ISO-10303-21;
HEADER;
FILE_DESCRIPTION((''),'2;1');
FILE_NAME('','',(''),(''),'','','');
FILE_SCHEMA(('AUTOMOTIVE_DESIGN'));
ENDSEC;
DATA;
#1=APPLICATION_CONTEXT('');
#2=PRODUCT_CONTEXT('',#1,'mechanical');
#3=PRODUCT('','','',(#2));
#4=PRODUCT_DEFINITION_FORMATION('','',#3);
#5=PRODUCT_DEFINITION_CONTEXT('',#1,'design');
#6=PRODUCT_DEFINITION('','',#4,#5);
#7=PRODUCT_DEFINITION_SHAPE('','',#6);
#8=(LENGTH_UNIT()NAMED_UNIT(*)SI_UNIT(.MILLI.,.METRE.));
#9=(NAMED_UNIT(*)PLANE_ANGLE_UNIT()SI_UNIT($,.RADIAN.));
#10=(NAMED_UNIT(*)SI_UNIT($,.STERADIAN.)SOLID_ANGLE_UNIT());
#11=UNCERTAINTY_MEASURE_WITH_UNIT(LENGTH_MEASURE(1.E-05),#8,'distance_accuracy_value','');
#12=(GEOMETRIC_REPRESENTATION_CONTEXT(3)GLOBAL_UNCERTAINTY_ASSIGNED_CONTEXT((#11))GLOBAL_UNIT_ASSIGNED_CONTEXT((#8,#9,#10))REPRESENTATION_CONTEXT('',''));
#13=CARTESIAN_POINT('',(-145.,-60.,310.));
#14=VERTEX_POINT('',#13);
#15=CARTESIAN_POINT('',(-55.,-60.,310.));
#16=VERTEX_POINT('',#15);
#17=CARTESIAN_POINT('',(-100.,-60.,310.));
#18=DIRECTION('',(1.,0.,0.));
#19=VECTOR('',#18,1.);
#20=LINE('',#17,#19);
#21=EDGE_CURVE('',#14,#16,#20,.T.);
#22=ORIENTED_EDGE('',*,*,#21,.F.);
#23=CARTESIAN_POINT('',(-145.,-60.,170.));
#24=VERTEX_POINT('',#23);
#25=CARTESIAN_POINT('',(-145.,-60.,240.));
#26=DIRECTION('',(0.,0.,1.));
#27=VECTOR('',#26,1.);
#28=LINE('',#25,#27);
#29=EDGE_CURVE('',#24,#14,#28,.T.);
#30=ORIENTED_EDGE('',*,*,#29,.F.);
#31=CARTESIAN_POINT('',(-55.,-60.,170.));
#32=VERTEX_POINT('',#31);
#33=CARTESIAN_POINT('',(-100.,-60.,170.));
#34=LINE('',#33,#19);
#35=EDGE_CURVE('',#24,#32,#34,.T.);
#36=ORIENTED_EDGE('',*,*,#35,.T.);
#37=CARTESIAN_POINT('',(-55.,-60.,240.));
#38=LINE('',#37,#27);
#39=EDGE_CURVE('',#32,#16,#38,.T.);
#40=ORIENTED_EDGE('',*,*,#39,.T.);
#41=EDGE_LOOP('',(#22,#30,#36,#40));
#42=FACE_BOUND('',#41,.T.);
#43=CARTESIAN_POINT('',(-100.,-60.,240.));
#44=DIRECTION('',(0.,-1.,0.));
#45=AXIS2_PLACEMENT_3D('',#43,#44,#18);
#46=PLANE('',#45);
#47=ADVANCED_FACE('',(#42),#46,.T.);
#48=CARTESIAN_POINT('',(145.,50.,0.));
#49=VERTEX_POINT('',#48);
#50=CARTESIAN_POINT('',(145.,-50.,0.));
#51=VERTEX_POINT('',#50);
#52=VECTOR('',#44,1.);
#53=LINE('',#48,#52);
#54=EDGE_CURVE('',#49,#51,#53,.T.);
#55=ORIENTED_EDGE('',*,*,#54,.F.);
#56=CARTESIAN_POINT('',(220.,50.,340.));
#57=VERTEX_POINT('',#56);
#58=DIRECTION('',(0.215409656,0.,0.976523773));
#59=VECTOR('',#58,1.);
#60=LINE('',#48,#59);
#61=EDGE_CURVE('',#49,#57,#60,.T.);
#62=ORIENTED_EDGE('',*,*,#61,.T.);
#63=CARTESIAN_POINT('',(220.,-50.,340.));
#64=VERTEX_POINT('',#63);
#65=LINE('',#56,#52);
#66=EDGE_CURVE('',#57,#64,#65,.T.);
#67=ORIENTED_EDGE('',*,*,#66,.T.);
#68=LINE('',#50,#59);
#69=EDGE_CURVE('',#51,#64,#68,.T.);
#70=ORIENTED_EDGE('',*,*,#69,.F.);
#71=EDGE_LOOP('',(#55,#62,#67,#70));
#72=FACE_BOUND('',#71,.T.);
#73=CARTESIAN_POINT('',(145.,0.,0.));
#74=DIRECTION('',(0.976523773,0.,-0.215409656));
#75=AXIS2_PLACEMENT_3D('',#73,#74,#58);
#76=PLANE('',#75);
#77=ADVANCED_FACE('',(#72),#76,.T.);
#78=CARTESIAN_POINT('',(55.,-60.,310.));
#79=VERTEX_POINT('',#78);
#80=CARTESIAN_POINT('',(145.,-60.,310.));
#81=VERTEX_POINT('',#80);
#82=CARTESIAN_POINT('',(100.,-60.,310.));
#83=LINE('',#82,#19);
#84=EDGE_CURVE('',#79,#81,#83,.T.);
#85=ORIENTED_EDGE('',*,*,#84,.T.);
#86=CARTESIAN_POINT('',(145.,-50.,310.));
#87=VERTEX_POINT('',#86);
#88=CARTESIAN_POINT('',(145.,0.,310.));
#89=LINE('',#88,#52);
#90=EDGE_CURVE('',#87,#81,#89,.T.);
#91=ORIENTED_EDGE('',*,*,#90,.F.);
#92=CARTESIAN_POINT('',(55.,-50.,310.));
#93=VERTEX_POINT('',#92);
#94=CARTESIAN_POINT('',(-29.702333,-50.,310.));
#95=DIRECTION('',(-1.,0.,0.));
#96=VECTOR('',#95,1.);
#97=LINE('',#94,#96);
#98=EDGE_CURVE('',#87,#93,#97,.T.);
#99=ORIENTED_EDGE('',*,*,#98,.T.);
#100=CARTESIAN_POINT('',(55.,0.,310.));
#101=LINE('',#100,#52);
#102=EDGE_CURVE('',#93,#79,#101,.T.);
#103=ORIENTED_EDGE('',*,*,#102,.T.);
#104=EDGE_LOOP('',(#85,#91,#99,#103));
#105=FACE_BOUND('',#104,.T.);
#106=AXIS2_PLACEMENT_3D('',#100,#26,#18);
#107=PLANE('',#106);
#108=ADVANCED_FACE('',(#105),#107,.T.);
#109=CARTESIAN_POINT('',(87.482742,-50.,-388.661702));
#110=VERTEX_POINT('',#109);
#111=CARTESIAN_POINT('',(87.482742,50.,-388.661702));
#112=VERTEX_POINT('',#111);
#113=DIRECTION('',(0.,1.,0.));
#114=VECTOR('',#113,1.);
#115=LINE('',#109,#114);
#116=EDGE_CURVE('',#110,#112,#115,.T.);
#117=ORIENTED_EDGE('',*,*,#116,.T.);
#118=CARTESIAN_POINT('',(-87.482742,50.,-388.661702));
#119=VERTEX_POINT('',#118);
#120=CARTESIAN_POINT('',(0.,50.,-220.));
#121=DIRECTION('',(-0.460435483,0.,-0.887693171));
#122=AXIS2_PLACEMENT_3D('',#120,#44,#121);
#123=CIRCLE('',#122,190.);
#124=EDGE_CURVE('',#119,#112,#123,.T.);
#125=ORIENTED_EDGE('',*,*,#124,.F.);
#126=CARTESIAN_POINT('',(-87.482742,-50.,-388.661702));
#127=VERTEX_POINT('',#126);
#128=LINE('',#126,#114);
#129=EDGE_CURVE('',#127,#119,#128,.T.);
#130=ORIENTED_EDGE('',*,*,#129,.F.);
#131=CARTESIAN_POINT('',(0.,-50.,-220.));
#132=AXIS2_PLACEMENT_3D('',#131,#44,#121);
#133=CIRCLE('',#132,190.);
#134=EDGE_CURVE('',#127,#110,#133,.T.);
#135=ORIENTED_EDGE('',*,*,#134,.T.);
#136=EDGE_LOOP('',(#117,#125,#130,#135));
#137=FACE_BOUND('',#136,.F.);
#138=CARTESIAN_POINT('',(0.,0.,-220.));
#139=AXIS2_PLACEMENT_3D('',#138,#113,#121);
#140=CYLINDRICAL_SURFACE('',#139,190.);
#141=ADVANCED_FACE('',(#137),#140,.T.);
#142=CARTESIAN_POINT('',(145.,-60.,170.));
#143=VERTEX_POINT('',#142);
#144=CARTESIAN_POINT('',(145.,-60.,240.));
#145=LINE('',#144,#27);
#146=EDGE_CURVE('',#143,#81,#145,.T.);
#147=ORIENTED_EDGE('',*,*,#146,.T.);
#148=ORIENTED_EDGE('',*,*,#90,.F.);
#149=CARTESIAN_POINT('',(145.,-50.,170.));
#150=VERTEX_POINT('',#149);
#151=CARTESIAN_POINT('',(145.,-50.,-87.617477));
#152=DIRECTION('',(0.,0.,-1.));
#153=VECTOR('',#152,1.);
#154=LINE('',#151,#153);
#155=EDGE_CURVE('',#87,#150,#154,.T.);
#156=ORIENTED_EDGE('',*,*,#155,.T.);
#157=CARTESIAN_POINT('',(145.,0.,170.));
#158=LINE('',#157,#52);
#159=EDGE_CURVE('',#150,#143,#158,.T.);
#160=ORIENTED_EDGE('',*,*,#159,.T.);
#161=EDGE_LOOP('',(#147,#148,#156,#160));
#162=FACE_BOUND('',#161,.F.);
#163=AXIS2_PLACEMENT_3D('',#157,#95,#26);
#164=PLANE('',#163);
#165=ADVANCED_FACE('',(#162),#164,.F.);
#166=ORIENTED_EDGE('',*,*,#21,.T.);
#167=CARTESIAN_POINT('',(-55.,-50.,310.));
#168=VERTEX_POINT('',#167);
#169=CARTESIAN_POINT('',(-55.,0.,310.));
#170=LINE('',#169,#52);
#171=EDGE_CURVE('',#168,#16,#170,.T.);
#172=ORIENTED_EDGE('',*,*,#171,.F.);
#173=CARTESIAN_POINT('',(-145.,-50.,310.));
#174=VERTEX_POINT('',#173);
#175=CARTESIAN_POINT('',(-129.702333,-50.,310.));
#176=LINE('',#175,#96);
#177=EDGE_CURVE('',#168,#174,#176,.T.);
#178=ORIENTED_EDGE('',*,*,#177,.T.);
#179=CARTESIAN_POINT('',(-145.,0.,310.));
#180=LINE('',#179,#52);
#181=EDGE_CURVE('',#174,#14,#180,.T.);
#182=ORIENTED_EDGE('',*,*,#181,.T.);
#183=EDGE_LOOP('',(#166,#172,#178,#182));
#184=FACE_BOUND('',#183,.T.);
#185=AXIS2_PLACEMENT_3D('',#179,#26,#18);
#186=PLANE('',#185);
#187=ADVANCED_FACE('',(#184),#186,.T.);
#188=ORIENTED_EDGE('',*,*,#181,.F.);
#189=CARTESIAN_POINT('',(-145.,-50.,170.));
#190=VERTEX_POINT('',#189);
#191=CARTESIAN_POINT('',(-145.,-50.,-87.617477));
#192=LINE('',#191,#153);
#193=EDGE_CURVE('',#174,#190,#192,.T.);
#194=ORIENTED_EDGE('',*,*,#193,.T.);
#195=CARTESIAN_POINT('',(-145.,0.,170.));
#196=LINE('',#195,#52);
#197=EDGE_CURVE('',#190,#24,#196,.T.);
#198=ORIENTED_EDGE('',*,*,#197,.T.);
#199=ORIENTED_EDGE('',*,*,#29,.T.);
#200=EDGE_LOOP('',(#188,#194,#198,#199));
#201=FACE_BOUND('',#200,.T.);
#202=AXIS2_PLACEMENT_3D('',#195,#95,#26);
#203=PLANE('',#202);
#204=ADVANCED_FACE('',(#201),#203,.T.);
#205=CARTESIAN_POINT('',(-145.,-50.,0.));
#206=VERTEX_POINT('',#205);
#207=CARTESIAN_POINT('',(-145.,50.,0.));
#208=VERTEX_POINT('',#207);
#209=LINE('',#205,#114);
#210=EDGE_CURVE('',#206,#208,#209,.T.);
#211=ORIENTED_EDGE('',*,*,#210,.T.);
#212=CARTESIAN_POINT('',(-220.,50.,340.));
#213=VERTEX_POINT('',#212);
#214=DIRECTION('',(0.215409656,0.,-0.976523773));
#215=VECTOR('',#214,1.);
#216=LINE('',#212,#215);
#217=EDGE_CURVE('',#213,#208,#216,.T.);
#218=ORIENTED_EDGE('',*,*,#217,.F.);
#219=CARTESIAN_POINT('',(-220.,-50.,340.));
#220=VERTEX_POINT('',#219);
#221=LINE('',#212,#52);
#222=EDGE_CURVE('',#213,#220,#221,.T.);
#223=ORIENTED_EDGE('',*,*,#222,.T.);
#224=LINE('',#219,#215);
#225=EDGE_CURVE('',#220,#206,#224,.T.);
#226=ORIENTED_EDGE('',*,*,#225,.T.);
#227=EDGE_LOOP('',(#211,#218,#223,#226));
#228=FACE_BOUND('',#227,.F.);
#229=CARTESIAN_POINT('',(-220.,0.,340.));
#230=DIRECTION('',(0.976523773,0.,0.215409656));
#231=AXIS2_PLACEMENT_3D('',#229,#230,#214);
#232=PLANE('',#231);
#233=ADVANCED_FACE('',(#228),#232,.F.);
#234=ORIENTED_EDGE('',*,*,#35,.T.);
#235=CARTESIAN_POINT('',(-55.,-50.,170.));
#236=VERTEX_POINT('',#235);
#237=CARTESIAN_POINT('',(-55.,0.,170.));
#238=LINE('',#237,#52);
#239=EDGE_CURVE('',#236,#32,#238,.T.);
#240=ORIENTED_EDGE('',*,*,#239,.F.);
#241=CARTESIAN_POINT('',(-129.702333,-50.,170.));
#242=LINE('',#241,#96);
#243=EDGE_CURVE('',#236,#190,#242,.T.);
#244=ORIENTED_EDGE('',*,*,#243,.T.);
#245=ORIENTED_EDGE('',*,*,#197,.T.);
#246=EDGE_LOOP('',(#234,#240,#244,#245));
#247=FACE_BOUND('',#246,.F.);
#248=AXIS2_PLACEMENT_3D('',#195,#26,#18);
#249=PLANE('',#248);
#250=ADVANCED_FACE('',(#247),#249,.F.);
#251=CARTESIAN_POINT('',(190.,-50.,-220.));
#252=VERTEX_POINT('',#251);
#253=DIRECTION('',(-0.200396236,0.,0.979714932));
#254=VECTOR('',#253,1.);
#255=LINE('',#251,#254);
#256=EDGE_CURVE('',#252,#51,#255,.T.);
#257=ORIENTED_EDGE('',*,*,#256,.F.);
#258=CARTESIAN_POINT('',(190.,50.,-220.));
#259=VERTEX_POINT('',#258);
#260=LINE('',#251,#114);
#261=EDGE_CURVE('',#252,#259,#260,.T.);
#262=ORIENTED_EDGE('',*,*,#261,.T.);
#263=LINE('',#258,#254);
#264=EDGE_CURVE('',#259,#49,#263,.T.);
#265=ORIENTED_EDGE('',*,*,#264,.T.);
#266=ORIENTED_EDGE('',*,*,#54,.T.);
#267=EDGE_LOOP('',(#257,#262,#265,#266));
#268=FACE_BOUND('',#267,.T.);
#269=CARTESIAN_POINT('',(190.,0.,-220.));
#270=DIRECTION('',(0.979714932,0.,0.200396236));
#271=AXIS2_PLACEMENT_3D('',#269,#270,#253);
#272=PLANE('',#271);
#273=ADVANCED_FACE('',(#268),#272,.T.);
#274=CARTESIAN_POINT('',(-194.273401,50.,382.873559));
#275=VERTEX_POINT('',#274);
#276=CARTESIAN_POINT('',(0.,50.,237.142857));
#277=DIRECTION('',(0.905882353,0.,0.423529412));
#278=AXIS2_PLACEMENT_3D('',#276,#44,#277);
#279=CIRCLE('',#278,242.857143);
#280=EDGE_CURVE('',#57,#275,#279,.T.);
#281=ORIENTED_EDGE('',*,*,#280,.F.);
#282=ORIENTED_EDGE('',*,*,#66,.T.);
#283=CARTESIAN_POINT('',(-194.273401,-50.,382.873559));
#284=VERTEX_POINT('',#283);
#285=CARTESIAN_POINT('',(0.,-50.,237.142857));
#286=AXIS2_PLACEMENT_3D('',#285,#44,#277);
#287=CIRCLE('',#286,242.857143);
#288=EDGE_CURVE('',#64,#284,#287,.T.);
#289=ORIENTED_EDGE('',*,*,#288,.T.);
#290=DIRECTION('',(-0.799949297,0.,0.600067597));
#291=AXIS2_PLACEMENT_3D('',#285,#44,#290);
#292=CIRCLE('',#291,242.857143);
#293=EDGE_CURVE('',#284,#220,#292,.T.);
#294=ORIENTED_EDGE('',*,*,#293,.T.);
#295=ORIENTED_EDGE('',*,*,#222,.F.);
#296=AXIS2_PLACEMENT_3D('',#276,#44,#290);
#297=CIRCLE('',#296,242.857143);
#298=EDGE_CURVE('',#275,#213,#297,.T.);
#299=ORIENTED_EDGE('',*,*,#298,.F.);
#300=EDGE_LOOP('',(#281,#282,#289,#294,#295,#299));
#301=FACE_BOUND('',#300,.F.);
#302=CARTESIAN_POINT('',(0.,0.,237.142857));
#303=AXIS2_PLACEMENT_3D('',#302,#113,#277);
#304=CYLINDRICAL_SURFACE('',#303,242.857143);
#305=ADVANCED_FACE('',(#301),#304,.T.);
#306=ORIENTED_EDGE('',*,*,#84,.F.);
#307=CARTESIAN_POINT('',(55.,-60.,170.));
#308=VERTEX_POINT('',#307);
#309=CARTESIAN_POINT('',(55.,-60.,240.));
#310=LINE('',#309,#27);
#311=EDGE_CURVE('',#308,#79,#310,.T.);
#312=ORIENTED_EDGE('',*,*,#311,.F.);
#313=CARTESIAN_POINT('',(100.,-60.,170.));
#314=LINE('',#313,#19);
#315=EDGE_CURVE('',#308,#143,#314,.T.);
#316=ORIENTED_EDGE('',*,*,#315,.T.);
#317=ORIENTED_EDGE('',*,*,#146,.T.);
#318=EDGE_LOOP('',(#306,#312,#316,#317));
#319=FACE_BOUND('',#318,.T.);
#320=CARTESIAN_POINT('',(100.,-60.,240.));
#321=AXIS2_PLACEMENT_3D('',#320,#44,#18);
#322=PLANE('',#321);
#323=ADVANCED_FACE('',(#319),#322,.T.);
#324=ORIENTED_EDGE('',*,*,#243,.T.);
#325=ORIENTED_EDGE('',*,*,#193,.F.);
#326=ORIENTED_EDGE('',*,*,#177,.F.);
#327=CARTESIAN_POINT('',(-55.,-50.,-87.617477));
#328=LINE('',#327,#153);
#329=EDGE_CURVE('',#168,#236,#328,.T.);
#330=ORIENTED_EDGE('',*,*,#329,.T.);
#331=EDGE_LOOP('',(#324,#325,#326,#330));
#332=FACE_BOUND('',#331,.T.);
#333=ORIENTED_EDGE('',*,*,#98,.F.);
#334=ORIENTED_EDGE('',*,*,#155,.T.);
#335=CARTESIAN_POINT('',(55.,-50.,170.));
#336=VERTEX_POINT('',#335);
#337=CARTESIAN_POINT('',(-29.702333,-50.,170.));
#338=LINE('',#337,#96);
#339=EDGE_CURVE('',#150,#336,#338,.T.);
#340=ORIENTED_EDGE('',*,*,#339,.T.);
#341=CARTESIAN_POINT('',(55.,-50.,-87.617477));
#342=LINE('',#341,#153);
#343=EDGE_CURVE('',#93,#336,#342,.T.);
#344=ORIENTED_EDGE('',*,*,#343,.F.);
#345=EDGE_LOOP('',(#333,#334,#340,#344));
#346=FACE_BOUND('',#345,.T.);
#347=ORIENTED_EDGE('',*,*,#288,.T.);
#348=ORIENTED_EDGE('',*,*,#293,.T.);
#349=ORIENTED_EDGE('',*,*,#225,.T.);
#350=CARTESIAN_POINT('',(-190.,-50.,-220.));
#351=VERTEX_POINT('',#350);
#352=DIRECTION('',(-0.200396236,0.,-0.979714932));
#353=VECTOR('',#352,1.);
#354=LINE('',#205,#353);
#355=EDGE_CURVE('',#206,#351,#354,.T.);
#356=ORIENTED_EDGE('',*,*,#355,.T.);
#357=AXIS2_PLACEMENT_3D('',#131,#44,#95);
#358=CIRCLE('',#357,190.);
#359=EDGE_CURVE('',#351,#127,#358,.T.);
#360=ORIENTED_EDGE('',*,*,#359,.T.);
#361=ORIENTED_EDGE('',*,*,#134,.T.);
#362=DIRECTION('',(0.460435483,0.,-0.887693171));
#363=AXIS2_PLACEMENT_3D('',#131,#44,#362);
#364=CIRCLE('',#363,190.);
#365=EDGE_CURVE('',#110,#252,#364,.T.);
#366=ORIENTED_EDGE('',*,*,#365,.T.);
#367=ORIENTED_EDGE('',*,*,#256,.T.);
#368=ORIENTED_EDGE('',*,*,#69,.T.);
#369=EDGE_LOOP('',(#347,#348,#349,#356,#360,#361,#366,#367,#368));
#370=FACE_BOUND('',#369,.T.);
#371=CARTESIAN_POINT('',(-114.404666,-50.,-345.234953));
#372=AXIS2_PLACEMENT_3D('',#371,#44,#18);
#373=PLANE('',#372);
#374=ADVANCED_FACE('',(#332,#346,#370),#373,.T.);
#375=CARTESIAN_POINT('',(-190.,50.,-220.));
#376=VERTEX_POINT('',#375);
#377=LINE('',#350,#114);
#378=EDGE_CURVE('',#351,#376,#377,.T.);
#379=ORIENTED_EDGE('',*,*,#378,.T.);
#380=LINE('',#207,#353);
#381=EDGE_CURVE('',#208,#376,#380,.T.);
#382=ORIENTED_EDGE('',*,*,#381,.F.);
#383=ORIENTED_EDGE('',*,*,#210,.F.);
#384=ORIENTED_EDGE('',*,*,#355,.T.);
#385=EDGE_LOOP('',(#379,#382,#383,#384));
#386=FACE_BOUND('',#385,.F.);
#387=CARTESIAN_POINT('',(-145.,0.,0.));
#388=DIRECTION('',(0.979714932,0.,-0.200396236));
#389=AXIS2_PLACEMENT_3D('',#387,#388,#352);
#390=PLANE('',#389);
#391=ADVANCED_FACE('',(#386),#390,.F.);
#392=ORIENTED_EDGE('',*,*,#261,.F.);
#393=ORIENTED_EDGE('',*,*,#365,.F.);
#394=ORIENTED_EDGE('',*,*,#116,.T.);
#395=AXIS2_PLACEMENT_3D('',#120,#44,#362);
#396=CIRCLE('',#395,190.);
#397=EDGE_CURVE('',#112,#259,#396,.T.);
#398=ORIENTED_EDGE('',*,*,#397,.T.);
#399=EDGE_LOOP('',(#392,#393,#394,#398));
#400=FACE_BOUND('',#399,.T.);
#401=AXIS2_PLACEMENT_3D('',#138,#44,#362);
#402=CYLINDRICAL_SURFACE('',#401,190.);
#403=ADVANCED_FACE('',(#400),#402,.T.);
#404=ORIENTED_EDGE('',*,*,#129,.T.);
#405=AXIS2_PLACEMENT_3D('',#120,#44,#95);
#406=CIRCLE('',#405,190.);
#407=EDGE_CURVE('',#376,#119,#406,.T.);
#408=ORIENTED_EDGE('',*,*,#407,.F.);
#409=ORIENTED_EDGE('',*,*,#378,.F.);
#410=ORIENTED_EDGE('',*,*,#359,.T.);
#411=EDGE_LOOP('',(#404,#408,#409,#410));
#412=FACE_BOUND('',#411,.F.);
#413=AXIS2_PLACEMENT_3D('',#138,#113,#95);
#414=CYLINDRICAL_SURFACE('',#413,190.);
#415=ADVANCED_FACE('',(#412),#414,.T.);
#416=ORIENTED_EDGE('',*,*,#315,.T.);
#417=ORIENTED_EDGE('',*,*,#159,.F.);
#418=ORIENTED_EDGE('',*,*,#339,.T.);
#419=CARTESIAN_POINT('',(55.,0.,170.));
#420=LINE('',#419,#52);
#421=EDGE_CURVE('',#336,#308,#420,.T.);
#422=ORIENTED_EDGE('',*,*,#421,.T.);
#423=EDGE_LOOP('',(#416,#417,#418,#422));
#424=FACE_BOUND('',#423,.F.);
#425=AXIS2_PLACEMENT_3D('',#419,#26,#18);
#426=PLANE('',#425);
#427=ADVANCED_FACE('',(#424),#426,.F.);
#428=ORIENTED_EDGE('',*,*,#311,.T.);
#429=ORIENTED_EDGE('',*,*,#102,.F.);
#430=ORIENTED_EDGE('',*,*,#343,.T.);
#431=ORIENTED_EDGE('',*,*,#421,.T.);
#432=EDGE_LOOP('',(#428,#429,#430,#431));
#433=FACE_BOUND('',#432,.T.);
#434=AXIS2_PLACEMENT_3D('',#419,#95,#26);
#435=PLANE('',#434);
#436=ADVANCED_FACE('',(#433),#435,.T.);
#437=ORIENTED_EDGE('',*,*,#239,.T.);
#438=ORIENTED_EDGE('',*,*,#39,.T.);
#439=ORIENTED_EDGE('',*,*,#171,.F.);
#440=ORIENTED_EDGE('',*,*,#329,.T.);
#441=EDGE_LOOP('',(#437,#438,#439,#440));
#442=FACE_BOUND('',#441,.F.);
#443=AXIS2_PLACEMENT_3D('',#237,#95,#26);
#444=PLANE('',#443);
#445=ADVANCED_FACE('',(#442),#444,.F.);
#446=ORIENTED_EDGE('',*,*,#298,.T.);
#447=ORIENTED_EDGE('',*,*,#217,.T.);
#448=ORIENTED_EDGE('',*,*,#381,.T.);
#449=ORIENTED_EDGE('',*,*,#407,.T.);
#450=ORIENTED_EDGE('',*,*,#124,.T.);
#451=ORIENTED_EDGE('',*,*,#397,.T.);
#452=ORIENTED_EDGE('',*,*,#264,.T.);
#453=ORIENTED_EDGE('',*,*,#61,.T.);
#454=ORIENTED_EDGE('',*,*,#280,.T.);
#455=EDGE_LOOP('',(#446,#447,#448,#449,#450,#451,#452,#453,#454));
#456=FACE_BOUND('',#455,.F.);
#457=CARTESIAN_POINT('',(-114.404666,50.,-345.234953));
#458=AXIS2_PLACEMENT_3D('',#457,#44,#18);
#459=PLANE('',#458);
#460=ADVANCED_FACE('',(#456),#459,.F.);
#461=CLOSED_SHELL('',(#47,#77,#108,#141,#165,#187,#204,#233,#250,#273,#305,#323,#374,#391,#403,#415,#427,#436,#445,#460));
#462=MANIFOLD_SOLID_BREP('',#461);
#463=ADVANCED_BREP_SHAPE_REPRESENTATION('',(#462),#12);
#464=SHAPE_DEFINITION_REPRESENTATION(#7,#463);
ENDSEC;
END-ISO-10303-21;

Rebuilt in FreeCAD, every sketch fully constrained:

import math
import FreeCAD as App
import Part
import Sketcher
from FreeCAD import Vector
Q = App.Units.Quantity

doc = App.newDocument("Part")
body = doc.addObject("PartDesign::Body", "Body")

# Sketch on XZ plane
sketch1 = doc.addObject("Sketcher::SketchObject", "Sketch")
body.addObject(sketch1)
sketch1.AttachmentSupport = (doc.XZ_Plane, [""])
sketch1.MapMode = "FlatFace"
sketch1.addGeometry([
    Part.LineSegment(Vector(190, -220, 0), Vector(145, 0, 0)),  # 0
    Part.LineSegment(Vector(145, 0, 0), Vector(220, 340, 0)),  # 1
    Part.ArcOfCircle(Part.Circle(Vector(0, 237, 0), Vector(0, 0, 1), 243), math.radians(25), math.radians(143)),  # 2
    Part.ArcOfCircle(Part.Circle(Vector(0, 237, 0), Vector(0, 0, 1), 243), math.radians(143.13), math.radians(154.94)),  # 3
    Part.LineSegment(Vector(-220, 340, 0), Vector(-145, 0, 0)),  # 4
    Part.LineSegment(Vector(-145, 0, 0), Vector(-190, -220, 0)),  # 5
    Part.ArcOfCircle(Part.Circle(Vector(0, -220, 0), Vector(0, 0, 1), 190), math.radians(180), math.radians(243)),  # 6
    Part.ArcOfCircle(Part.Circle(Vector(0, -220, 0), Vector(0, 0, 1), 190), math.radians(-117), math.radians(-63)),  # 7
    Part.ArcOfCircle(Part.Circle(Vector(0, -220, 0), Vector(0, 0, 1), 190), math.radians(-63), math.radians(0)),  # 8
], False)
sketch1.addConstraint([
    Sketcher.Constraint("Coincident", 0, 2, 1, 1),
    Sketcher.Constraint("Coincident", 1, 2, 2, 1),
    Sketcher.Constraint("Tangent", 2, 2, 3, 1),
    Sketcher.Constraint("Coincident", 3, 2, 4, 1),
    Sketcher.Constraint("Coincident", 4, 2, 5, 1),
    Sketcher.Constraint("Coincident", 5, 2, 6, 1),
    Sketcher.Constraint("Tangent", 6, 2, 7, 1),
    Sketcher.Constraint("Tangent", 7, 2, 8, 1),
    Sketcher.Constraint("Coincident", 8, 2, 0, 1),
    Sketcher.Constraint("Coincident", 8, 3, 6, 3),
    Sketcher.Constraint("Equal", 2, 3),
    Sketcher.Constraint("Symmetric", 0, 2, 4, 2, -1, 1),
    Sketcher.Constraint("Symmetric", 1, 2, 3, 2, -2),
    Sketcher.Constraint("Symmetric", 6, 2, 7, 2, -2),
    Sketcher.Constraint("PointOnObject", 0, 2, -1),
    Sketcher.Constraint("Horizontal", 8, 3, 5, 2),
    Sketcher.Constraint("Horizontal", 5, 2, 8, 2),
    Sketcher.Constraint("Radius", 6, Q("190 mm")),
    Sketcher.Constraint("DistanceY", 6, 3, -1, 1, Q("220 mm")),
    Sketcher.Constraint("DistanceX", -1, 1, 0, 2, Q("145 mm")),
    Sketcher.Constraint("DistanceX", -1, 1, 1, 2, Q("220 mm")),
    Sketcher.Constraint("DistanceY", -1, 1, 1, 2, Q("340 mm")),
    Sketcher.Constraint("Radius", 2, Q("242.857143 mm")),
    Sketcher.Constraint("DistanceX", 2, 2, -1, 1, Q("194.273401 mm")),
    Sketcher.Constraint("DistanceX", 6, 2, -1, 1, Q("87.482742 mm")),
])
pad1 = doc.addObject("PartDesign::Pad", "Pad")
body.addObject(pad1)
pad1.Profile = sketch1
pad1.Length = 100
pad1.Midplane = True

# Sketch on XZ plane
sketch2 = doc.addObject("Sketcher::SketchObject", "Sketch001")
body.addObject(sketch2)
sketch2.AttachmentSupport = (doc.XZ_Plane, [""])
sketch2.MapMode = "FlatFace"
sketch2.addGeometry([
    Part.LineSegment(Vector(-145, 310, 0), Vector(-145, 170, 0)),  # 0
    Part.LineSegment(Vector(-145, 170, 0), Vector(-55, 170, 0)),  # 1
    Part.LineSegment(Vector(-55, 170, 0), Vector(-55, 310, 0)),  # 2
    Part.LineSegment(Vector(-55, 310, 0), Vector(-145, 310, 0)),  # 3
    Part.LineSegment(Vector(55, 310, 0), Vector(55, 170, 0)),  # 4
    Part.LineSegment(Vector(55, 170, 0), Vector(145, 170, 0)),  # 5
    Part.LineSegment(Vector(145, 170, 0), Vector(145, 310, 0)),  # 6
    Part.LineSegment(Vector(145, 310, 0), Vector(55, 310, 0)),  # 7
], False)
sketch2.addConstraint([
    Sketcher.Constraint("Coincident", 0, 2, 1, 1),
    Sketcher.Constraint("Coincident", 1, 2, 2, 1),
    Sketcher.Constraint("Coincident", 2, 2, 3, 1),
    Sketcher.Constraint("Coincident", 3, 2, 0, 1),
    Sketcher.Constraint("Coincident", 4, 2, 5, 1),
    Sketcher.Constraint("Coincident", 5, 2, 6, 1),
    Sketcher.Constraint("Coincident", 6, 2, 7, 1),
    Sketcher.Constraint("Coincident", 7, 2, 4, 1),
    Sketcher.Constraint("Vertical", 0),
    Sketcher.Constraint("Horizontal", 1),
    Sketcher.Constraint("Vertical", 2),
    Sketcher.Constraint("Horizontal", 3),
    Sketcher.Constraint("Vertical", 4),
    Sketcher.Constraint("Horizontal", 5),
    Sketcher.Constraint("Vertical", 6),
    Sketcher.Constraint("Horizontal", 7),
    Sketcher.Constraint("Symmetric", 1, 2, 4, 2, -2),
    Sketcher.Constraint("Symmetric", 3, 2, 6, 2, -2),
    Sketcher.Constraint("DistanceX", 1, 1, 1, 2, Q("90 mm")),
    Sketcher.Constraint("DistanceY", 0, 2, 0, 1, Q("140 mm")),
    Sketcher.Constraint("DistanceX", 0, 2, -1, 1, Q("145 mm")),
    Sketcher.Constraint("DistanceY", -1, 1, 0, 2, Q("170 mm")),
])
pad2 = doc.addObject("PartDesign::Pad", "Pad001")
body.addObject(pad2)
pad2.Profile = sketch2
pad2.Length = 60

doc.recompute()
